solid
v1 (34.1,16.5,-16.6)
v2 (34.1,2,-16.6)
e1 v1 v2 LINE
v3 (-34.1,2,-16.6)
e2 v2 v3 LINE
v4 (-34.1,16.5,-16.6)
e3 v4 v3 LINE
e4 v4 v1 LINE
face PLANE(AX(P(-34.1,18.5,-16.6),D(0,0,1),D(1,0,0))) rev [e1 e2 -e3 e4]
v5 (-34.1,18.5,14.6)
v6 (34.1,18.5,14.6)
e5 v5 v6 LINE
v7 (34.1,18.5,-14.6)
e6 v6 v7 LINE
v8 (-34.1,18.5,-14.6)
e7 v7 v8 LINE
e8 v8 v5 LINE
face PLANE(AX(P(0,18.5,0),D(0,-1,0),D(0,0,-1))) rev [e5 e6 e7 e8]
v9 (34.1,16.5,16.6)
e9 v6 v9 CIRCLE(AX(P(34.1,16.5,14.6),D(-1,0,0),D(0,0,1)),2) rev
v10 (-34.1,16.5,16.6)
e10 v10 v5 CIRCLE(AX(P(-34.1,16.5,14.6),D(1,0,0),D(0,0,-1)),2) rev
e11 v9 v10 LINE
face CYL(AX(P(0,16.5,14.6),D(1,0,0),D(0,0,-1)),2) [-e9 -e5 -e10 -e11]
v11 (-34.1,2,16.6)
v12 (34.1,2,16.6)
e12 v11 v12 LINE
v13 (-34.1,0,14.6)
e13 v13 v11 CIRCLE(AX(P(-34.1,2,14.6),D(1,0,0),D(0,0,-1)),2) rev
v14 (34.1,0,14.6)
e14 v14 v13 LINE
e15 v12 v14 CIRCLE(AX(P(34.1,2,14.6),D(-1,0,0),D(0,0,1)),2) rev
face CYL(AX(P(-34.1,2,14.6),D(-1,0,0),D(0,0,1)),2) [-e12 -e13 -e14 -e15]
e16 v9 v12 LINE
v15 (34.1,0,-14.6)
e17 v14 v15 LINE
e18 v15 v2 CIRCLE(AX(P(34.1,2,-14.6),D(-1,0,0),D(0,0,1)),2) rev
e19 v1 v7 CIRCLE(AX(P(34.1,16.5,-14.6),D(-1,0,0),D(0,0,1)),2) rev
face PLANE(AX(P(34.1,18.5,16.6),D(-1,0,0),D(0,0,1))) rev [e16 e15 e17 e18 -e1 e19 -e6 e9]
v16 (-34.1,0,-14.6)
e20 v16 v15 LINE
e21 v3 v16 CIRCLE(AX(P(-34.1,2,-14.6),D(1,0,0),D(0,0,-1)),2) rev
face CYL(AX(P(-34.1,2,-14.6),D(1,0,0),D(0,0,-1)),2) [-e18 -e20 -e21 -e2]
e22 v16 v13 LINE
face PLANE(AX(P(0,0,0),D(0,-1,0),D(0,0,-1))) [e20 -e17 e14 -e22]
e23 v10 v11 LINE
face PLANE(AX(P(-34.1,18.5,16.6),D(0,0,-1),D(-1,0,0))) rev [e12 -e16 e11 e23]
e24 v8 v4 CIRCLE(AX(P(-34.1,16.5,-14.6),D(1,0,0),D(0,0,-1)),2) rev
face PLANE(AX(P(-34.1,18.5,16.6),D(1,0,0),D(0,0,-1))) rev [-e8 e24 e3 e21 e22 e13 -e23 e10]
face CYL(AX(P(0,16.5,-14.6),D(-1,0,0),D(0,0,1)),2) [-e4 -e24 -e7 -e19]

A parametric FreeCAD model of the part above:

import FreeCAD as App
import Part
import Sketcher

V = App.Vector
Q = App.Units.Quantity


def edges_at(feature, points):
    """Names of the edges that pass closest to the given points."""
    edges = feature.Shape.Edges
    near = lambda p: min(range(len(edges)), key=lambda i: edges[i].distToShape(Part.Vertex(*p))[0])
    return sorted({f"Edge{near(p) + 1}" for p in points})


def add_polygon(sketch, points):
    """Adds a closed chain of lines whose ends are joined by coincident constraints."""
    first, n = sketch.GeometryCount, len(points)
    for a, b in zip(points, points[1:] + points[:1]):
        sketch.addGeometry(Part.LineSegment(App.Vector(*a, 0), App.Vector(*b, 0)), False)
    for i in range(n):
        sketch.addConstraint(Sketcher.Constraint("Coincident", first + i, 2, first + (i + 1) % n, 1))

doc = App.newDocument("Part")
body = doc.addObject("PartDesign::Body", "Body")

sketch1 = body.newObject("Sketcher::SketchObject", "Sketch")
sketch1.AttachmentSupport = (doc.getObject("XZ_Plane"), [""])
sketch1.MapMode = "FlatFace"
add_polygon(sketch1, [(-34.1, -16.6), (-34.1, 16.6), (34.1, 16.6), (34.1, -16.6)])
sketch1.addConstraint(Sketcher.Constraint("Vertical", 0))
sketch1.addConstraint(Sketcher.Constraint("Horizontal", 1))
sketch1.addConstraint(Sketcher.Constraint("Vertical", 2))
sketch1.addConstraint(Sketcher.Constraint("Horizontal", 3))
sketch1.addConstraint(Sketcher.Constraint("Symmetric", 0, 2, 2, 2, -1, 1))
sketch1.addConstraint(Sketcher.Constraint("DistanceX", 1, 1, 1, 2, Q("68.2 mm")))
sketch1.addConstraint(Sketcher.Constraint("DistanceY", 0, 1, 0, 2, Q("33.2 mm")))
pad1 = body.newObject("PartDesign::Pad", "Pad")
pad1.Profile = sketch1
pad1.Length = 18.5
pad1.Reversed = True
doc.recompute()

fillet = body.newObject("PartDesign::Fillet", "Fillet")
fillet.Base = (pad1, edges_at(pad1, [
    (0, 18.5, 16.6),
    (0, 0, 16.6),
    (0, 0, -16.6),
    (0, 18.5, -16.6),
]))
fillet.Radius = 2

doc.recompute()
